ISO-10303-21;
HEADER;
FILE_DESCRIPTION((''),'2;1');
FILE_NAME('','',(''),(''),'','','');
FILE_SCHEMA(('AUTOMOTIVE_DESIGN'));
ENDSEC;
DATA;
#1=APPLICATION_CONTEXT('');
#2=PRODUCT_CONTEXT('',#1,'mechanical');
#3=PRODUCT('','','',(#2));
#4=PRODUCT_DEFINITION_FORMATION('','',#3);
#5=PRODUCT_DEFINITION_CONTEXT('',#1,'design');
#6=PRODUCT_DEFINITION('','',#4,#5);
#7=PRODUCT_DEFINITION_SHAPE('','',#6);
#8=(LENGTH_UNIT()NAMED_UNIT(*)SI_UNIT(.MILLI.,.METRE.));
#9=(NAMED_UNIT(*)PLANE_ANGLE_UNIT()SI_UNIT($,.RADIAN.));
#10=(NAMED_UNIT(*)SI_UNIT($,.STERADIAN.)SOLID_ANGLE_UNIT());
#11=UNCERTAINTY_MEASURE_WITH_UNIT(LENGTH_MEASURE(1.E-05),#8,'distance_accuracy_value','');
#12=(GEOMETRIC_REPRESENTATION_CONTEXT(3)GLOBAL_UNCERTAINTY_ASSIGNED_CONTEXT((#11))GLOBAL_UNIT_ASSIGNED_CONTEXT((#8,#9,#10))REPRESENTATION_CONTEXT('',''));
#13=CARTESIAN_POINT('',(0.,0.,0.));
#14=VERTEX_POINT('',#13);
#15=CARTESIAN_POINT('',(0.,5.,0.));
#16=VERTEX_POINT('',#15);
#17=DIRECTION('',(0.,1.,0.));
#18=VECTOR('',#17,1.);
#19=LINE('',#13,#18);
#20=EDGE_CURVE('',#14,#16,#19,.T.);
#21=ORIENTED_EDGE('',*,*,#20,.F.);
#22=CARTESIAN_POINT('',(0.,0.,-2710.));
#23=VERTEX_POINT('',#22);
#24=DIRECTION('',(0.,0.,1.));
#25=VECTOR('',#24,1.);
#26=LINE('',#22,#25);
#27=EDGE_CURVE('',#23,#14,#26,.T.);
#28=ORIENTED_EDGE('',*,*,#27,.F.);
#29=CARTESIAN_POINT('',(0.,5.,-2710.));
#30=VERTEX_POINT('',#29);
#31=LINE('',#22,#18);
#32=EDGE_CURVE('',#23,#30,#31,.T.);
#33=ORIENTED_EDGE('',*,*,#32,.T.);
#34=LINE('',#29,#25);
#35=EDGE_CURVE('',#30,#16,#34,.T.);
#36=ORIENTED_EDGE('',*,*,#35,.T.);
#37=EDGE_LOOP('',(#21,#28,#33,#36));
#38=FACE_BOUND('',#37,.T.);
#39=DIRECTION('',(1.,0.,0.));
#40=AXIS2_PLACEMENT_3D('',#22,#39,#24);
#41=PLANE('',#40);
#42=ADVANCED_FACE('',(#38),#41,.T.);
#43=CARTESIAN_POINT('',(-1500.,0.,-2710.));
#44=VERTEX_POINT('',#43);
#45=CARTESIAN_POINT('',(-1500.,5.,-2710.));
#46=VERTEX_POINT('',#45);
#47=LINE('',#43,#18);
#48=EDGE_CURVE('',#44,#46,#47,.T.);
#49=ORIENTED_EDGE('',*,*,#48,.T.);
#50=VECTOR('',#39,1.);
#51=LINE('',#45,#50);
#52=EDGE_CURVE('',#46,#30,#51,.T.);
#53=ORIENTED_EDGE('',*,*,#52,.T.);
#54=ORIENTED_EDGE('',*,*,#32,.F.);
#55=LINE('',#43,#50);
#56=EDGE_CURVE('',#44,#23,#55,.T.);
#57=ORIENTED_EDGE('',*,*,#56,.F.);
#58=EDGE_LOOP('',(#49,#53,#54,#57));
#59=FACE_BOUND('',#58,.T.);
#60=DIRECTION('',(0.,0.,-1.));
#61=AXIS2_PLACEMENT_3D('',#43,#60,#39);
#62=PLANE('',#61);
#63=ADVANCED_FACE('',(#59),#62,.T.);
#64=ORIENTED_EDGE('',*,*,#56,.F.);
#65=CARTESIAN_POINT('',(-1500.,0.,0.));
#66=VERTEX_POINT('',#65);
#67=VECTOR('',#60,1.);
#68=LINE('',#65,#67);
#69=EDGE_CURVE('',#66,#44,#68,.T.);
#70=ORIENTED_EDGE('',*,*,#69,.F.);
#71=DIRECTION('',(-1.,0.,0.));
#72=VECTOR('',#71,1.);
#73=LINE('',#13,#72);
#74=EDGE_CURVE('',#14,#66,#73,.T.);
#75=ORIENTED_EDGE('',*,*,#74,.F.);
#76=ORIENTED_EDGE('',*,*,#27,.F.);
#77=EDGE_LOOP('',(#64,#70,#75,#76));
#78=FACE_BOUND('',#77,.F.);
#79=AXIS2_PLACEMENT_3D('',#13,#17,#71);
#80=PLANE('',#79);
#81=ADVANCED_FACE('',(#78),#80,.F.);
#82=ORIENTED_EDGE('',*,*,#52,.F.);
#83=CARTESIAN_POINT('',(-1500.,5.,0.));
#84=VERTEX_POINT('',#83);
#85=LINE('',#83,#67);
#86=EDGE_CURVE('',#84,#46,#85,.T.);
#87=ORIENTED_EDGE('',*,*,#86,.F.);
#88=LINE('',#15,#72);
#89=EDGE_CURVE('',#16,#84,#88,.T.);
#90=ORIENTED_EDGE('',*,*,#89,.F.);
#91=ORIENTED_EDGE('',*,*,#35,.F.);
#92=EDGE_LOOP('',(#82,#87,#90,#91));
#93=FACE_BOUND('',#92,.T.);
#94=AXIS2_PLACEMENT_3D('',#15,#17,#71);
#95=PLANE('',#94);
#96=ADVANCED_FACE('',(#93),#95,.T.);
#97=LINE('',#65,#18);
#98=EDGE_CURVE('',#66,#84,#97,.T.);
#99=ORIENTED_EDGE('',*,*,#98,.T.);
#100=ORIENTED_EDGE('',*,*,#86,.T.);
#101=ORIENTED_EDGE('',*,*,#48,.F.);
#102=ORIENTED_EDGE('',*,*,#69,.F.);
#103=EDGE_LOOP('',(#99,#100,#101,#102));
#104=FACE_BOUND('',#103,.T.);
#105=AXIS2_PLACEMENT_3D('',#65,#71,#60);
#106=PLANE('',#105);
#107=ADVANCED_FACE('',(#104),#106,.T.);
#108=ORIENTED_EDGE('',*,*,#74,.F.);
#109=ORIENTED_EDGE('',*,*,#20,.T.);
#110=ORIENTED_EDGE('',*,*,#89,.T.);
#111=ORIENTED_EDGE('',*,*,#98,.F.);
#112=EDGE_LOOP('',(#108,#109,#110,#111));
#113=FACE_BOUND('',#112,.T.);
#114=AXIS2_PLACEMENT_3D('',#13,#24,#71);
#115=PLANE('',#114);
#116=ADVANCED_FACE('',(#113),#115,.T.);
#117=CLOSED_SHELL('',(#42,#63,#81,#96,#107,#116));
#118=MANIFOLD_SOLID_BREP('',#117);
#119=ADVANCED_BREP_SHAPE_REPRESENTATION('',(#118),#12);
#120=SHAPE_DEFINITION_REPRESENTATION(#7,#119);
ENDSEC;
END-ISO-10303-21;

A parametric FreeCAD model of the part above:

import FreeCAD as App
import Part
import Sketcher
from FreeCAD import Vector
Q = App.Units.Quantity

doc = App.newDocument("Part")
body = doc.addObject("PartDesign::Body", "Body")

sketch1 = body.newObject("Sketcher::SketchObject", "Sketch")
sketch1.AttachmentSupport = (doc.getObject("XZ_Plane"), [""])
sketch1.MapMode = "FlatFace"
sketch1.addGeometry(Part.LineSegment(Vector(-1500, 0, 0), Vector(0, 0, 0)), False)
sketch1.addGeometry(Part.LineSegment(Vector(0, 0, 0), Vector(0, -2710, 0)), False)
sketch1.addGeometry(Part.LineSegment(Vector(0, -2710, 0), Vector(-1500, -2710, 0)), False)
sketch1.addGeometry(Part.LineSegment(Vector(-1500, -2710, 0), Vector(-1500, 0, 0)), False)
sketch1.addConstraint(Sketcher.Constraint("Coincident", 0, 2, 1, 1))
sketch1.addConstraint(Sketcher.Constraint("Coincident", 1, 2, 2, 1))
sketch1.addConstraint(Sketcher.Constraint("Coincident", 2, 2, 3, 1))
sketch1.addConstraint(Sketcher.Constraint("Coincident", 3, 2, 0, 1))
sketch1.addConstraint(Sketcher.Constraint("Horizontal", 0))
sketch1.addConstraint(Sketcher.Constraint("Vertical", 1))
sketch1.addConstraint(Sketcher.Constraint("Horizontal", 2))
sketch1.addConstraint(Sketcher.Constraint("Vertical", 3))
sketch1.addConstraint(Sketcher.Constraint("Coincident", 0, 2, -1, 1))
sketch1.addConstraint(Sketcher.Constraint("DistanceX", 0, 1, 0, 2, Q("1500 mm")))
sketch1.addConstraint(Sketcher.Constraint("DistanceY", 1, 2, 1, 1, Q("2710 mm")))
pad1 = body.newObject("PartDesign::Pad", "Pad")
pad1.Profile = sketch1
pad1.Length = 5
pad1.Reversed = True

doc.recompute()
